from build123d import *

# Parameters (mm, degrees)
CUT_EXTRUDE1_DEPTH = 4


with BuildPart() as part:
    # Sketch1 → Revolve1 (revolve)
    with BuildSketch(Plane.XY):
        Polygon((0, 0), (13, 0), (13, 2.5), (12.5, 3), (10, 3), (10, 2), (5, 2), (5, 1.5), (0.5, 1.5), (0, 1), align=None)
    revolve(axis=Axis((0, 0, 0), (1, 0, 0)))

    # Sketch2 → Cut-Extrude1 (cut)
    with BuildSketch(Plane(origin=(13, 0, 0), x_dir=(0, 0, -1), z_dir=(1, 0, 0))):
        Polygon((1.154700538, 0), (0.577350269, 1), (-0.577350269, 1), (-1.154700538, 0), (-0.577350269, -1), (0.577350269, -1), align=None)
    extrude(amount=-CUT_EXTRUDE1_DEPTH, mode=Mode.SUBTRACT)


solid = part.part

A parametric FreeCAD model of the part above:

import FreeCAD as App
import Part
import Sketcher

V = App.Vector
Q = App.Units.Quantity


def add_polygon(sketch, points):
    """Adds a closed chain of lines whose ends are joined by coincident constraints."""
    first, n = sketch.GeometryCount, len(points)
    for a, b in zip(points, points[1:] + points[:1]):
        sketch.addGeometry(Part.LineSegment(App.Vector(*a, 0), App.Vector(*b, 0)), False)
    for i in range(n):
        sketch.addConstraint(Sketcher.Constraint("Coincident", first + i, 2, first + (i + 1) % n, 1))

doc = App.newDocument("Part")
body = doc.addObject("PartDesign::Body", "Body")

# Sketch on XY plane
sketch1 = body.newObject("Sketcher::SketchObject", "Sketch")
sketch1.AttachmentSupport = (doc.getObject("XY_Plane"), [""])
sketch1.MapMode = "FlatFace"
add_polygon(sketch1, [(0, 0), (13, 0), (13, 2.5), (12.5, 3), (10, 3), (10, 2), (5, 2), (5, 1.5), (0.5, 1.5), (0, 1)])  # lines 0-9
sketch1.addConstraint([
    Sketcher.Constraint("Horizontal", 0),
    Sketcher.Constraint("Vertical", 1),
    Sketcher.Constraint("Horizontal", 3),
    Sketcher.Constraint("Vertical", 4),
    Sketcher.Constraint("Horizontal", 5),
    Sketcher.Constraint("Vertical", 6),
    Sketcher.Constraint("Horizontal", 7),
    Sketcher.Constraint("Vertical", 9),
    Sketcher.Constraint("Coincident", 9, 2, -1, 1),
    Sketcher.Constraint("Perpendicular", 2, 8),
    Sketcher.Constraint("Equal", 3, 1),
    Sketcher.Constraint("Equal", 4, 9),
    Sketcher.Constraint("Equal", 2, 8),
    Sketcher.Constraint("DistanceX", 0, 1, 0, 2, Q("13 mm")),
    Sketcher.Constraint("DistanceX", 5, 2, 5, 1, Q("5 mm")),
    Sketcher.Constraint("DistanceY", 4, 2, 4, 1, Q("1 mm")),
    Sketcher.Constraint("Angle", 2, Q("135 deg")),
    Sketcher.Constraint("DistanceX", 3, 2, 3, 1, Q("2.5 mm")),
    Sketcher.Constraint("DistanceX", 7, 2, 7, 1, Q("4.5 mm")),
])
revolution = body.newObject("PartDesign::Revolution", "Revolution")
revolution.Profile = sketch1
revolution.ReferenceAxis = (sketch1, ["H_Axis"])
revolution.Angle = 360

# Sketch on YZ plane
sketch2 = body.newObject("Sketcher::SketchObject", "Sketch001")
sketch2.AttachmentSupport = (doc.getObject("YZ_Plane"), [""])
sketch2.MapMode = "FlatFace"
sketch2.AttachmentOffset = App.Placement(V(0, 0, 13), App.Rotation())
add_polygon(sketch2, [(0, -1.154701), (1, -0.57735), (1, 0.57735), (0, 1.154701), (-1, 0.57735), (-1, -0.57735)])  # lines 0-5
sketch2.addConstraint([
    Sketcher.Constraint("Vertical", 1),
    Sketcher.Constraint("Vertical", 4),
    Sketcher.Constraint("Symmetric", 0, 2, 3, 2, -1, 1),
    Sketcher.Constraint("Symmetric", 2, 2, 5, 2, -1, 1),
    Sketcher.Constraint("PointOnObject", 2, 2, -2),
    Sketcher.Constraint("Parallel", 2, 5),
    Sketcher.Constraint("Horizontal", 1, 2, 3, 2),
    Sketcher.Constraint("Angle", 0, Q("30 deg")),
    Sketcher.Constraint("DistanceX", -1, 1, 0, 2, Q("1 mm")),
    Sketcher.Constraint("DistanceY", 1, 1, 1, 2, Q("1.154701 mm")),
])
pocket1 = body.newObject("PartDesign::Pocket", "Pocket")
pocket1.Profile = sketch2
pocket1.Length = 4

doc.recompute()
